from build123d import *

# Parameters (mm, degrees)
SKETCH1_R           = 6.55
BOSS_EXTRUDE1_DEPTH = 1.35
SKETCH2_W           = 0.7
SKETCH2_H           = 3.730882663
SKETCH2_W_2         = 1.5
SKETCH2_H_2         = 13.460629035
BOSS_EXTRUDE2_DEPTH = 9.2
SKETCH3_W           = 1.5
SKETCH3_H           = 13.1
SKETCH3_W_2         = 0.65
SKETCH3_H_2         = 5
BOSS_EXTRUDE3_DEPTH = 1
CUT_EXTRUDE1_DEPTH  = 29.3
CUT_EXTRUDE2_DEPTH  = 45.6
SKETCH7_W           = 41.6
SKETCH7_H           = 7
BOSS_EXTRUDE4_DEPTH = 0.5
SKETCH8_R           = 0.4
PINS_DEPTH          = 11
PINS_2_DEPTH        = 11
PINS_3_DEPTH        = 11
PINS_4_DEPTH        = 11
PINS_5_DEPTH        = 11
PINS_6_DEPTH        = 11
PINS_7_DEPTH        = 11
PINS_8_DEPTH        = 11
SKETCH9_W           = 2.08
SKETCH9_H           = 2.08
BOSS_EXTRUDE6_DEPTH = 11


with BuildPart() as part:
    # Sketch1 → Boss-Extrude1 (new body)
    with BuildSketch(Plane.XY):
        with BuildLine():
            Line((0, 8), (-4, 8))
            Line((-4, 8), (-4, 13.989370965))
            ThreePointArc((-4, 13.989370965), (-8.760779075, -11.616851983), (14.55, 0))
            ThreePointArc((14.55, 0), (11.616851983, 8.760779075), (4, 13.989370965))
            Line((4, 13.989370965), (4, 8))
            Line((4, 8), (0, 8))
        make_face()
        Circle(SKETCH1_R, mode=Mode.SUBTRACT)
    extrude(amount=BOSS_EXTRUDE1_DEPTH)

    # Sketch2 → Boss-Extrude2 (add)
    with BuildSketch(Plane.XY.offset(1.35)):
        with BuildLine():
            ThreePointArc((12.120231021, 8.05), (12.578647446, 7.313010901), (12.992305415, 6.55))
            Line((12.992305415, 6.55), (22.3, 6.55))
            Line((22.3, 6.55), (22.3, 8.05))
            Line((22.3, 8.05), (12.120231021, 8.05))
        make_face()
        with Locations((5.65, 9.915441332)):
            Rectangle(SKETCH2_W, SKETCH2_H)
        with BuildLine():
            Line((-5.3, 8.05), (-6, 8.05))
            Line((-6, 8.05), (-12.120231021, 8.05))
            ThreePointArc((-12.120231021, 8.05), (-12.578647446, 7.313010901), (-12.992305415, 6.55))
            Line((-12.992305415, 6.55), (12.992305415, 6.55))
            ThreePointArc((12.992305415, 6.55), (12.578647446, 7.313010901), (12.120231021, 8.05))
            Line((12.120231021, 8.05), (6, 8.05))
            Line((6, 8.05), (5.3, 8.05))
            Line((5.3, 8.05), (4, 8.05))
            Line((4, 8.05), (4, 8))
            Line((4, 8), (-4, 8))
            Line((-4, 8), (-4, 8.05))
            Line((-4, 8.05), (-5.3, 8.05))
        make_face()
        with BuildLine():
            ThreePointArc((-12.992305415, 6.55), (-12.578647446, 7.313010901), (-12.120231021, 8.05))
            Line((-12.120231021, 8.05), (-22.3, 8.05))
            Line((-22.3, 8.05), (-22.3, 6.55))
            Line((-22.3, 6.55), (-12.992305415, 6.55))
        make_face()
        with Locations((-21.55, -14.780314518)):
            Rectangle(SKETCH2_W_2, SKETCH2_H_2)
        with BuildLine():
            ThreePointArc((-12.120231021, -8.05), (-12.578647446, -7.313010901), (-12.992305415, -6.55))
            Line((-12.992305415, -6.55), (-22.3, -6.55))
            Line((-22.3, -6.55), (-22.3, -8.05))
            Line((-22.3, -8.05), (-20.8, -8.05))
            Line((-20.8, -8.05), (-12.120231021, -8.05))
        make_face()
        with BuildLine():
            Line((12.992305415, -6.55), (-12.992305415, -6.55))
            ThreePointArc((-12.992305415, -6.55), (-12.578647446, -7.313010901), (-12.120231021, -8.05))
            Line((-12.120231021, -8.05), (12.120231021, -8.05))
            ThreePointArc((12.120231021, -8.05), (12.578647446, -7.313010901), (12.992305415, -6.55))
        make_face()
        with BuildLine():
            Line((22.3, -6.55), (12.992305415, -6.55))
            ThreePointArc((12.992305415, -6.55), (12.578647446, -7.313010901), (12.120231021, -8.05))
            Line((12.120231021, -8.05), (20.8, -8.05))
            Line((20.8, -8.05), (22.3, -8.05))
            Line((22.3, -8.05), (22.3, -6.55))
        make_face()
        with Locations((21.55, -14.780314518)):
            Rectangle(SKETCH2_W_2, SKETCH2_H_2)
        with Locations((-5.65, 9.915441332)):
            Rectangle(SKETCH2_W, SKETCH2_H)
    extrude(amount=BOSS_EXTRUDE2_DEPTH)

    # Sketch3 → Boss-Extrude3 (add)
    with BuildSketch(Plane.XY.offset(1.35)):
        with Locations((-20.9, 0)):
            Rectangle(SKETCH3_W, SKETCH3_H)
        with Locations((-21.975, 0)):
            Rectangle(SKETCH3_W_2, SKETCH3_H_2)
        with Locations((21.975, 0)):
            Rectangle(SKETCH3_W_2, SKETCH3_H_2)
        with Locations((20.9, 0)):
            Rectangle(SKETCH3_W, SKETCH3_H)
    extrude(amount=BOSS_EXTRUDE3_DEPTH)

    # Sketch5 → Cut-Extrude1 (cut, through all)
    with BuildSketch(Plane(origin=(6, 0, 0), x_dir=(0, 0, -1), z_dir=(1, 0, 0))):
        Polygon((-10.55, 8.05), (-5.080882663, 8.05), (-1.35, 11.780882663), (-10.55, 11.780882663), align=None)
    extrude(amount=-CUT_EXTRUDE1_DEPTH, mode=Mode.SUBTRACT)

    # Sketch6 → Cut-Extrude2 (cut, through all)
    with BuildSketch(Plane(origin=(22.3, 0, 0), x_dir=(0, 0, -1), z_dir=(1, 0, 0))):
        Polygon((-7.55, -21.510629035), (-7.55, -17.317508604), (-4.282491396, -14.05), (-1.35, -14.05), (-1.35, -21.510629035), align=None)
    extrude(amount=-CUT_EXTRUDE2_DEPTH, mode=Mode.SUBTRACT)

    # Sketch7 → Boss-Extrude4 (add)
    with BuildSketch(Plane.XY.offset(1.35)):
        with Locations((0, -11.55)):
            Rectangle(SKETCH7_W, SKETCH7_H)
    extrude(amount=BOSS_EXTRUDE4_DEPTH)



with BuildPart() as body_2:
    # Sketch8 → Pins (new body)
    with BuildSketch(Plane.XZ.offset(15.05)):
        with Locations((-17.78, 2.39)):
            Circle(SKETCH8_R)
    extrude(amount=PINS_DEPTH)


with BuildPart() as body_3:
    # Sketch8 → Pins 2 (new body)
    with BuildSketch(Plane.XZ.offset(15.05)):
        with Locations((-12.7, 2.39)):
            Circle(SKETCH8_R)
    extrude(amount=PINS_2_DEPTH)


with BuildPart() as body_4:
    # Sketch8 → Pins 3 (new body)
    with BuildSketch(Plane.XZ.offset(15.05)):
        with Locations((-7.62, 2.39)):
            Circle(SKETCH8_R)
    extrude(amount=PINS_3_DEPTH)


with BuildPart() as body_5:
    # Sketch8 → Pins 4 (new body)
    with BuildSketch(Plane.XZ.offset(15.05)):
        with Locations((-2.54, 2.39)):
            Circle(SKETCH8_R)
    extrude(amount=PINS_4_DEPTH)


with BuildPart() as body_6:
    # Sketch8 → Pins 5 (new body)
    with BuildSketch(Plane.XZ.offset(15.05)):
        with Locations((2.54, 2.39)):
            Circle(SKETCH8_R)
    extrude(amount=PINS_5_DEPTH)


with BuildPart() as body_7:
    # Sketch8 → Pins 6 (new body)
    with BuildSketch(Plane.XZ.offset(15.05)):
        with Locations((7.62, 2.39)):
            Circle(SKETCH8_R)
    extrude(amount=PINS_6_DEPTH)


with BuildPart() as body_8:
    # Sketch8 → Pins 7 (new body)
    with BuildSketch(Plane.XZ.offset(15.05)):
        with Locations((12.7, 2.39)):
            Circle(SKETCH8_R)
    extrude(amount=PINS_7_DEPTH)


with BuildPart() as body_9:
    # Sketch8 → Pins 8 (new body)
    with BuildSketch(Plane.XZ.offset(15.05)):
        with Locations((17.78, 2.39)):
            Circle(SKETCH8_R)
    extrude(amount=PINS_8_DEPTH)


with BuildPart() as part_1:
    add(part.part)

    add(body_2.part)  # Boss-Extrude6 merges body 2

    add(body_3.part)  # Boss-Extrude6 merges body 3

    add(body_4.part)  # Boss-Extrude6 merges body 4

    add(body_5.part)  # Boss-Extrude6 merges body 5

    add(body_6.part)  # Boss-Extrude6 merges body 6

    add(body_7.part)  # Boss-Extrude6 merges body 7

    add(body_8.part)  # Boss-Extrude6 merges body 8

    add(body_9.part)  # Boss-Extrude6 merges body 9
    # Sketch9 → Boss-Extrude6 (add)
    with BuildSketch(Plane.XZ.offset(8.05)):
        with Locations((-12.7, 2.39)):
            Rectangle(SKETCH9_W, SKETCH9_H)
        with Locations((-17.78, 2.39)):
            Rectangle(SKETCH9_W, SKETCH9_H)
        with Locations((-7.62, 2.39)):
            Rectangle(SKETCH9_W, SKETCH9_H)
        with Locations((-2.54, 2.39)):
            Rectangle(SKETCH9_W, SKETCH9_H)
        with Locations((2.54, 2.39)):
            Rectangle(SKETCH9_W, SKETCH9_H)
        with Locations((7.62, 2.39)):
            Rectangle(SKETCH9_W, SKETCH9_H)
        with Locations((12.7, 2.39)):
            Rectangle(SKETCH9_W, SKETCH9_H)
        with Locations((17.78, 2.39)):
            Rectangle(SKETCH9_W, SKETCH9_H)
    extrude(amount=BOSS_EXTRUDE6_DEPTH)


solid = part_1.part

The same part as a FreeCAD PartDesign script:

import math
import FreeCAD as App
import Part
import Sketcher
from FreeCAD import Vector
Q = App.Units.Quantity

doc = App.newDocument("Part")
body = doc.addObject("PartDesign::Body", "Body")

sketch1 = doc.addObject("Sketcher::SketchObject", "Sketch")
body.addObject(sketch1)
sketch1.AttachmentSupport = (doc.XY_Plane, [""])
sketch1.MapMode = "FlatFace"
sketch1.addGeometry([
    Part.LineSegment(Vector(-4, 8, 0), Vector(-4, 14, 0)),
    Part.ArcOfCircle(Part.Circle(Vector(0, 0, 0), Vector(0, 0, 1), 15), math.radians(106), math.radians(360)),
    Part.ArcOfCircle(Part.Circle(Vector(0, 0, 0), Vector(0, 0, 1), 15), math.radians(0), math.radians(74)),
    Part.LineSegment(Vector(4, 14, 0), Vector(4, 8, 0)),
    Part.LineSegment(Vector(4, 8, 0), Vector(-4, 8, 0)),
    Part.Circle(Vector(0, 0, 0), Vector(0, 0, 1), 7),
], False)
sketch1.addConstraint([
    Sketcher.Constraint("Coincident", 0, 2, 1, 1),
    Sketcher.Constraint("Tangent", 1, 2, 2, 1),
    Sketcher.Constraint("Coincident", 2, 2, 3, 1),
    Sketcher.Constraint("Coincident", 3, 2, 4, 1),
    Sketcher.Constraint("Coincident", 4, 2, 0, 1),
    Sketcher.Constraint("Vertical", 0),
    Sketcher.Constraint("Vertical", 3),
    Sketcher.Constraint("Horizontal", 4),
    Sketcher.Constraint("Coincident", 1, 3, -1, 1),
    Sketcher.Constraint("Coincident", 5, 3, -1, 1),
    Sketcher.Constraint("Equal", 1, 2),
    Sketcher.Constraint("PointOnObject", 1, 2, -1),
    Sketcher.Constraint("Horizontal", 0, 2, 2, 2),
    Sketcher.Constraint("Diameter", 5, 13.1),
    Sketcher.Constraint("DistanceX", 4, 2, 4, 1, 8.0),
    Sketcher.Constraint("Radius", 1, 14.55),
    Sketcher.Constraint("DistanceY", -1, 1, 3, 2, 8.0),
])
pad1 = doc.addObject("PartDesign::Pad", "Pad")
body.addObject(pad1)
pad1.Profile = sketch1
pad1.Length = 1.35

sketch2 = doc.addObject("Sketcher::SketchObject", "Sketch001")
body.addObject(sketch2)
sketch2.AttachmentSupport = (doc.XY_Plane, [""])
sketch2.MapMode = "FlatFace"
sketch2.AttachmentOffset = App.Placement(Vector(0, 0, 1.35), App.Rotation())
sketch2.addGeometry([
    Part.LineSegment(Vector(22.3, 6.55, 0), Vector(22.3, 8.05, 0)),
    Part.LineSegment(Vector(22.3, 8.05, 0), Vector(6, 8.05, 0)),
    Part.LineSegment(Vector(6, 8.05, 0), Vector(6, 11.78, 0)),
    Part.LineSegment(Vector(6, 11.78, 0), Vector(5.3, 11.78, 0)),
    Part.LineSegment(Vector(5.3, 11.78, 0), Vector(5.3, 8.05, 0)),
    Part.LineSegment(Vector(5.3, 8.05, 0), Vector(4, 8.05, 0)),
    Part.LineSegment(Vector(4, 8.05, 0), Vector(4, 8, 0)),
    Part.LineSegment(Vector(4, 8, 0), Vector(-4, 8, 0)),
    Part.LineSegment(Vector(-4, 8, 0), Vector(-4, 8.05, 0)),
    Part.LineSegment(Vector(-4, 8.05, 0), Vector(-5.3, 8.05, 0)),
    Part.LineSegment(Vector(-5.3, 8.05, 0), Vector(-5.3, 11.78, 0)),
    Part.LineSegment(Vector(-5.3, 11.78, 0), Vector(-6, 11.78, 0)),
    Part.LineSegment(Vector(-6, 11.78, 0), Vector(-6, 8.05, 0)),
    Part.LineSegment(Vector(-6, 8.05, 0), Vector(-22.3, 8.05, 0)),
    Part.LineSegment(Vector(-22.3, 8.05, 0), Vector(-22.3, 6.55, 0)),
    Part.LineSegment(Vector(-22.3, 6.55, 0), Vector(22.3, 6.55, 0)),
    Part.LineSegment(Vector(-22.3, -21.51, 0), Vector(-20.8, -21.51, 0)),
    Part.LineSegment(Vector(-20.8, -21.51, 0), Vector(-20.8, -8.05, 0)),
    Part.LineSegment(Vector(-20.8, -8.05, 0), Vector(12.12, -8.05, 0)),
    Part.LineSegment(Vector(12.12, -8.05, 0), Vector(20.8, -8.05, 0)),
    Part.LineSegment(Vector(20.8, -8.05, 0), Vector(20.8, -21.51, 0)),
    Part.LineSegment(Vector(20.8, -21.51, 0), Vector(22.3, -21.51, 0)),
    Part.LineSegment(Vector(22.3, -21.51, 0), Vector(22.3, -6.55, 0)),
    Part.LineSegment(Vector(22.3, -6.55, 0), Vector(-22.3, -6.55, 0)),
    Part.LineSegment(Vector(-22.3, -6.55, 0), Vector(-22.3, -21.51, 0)),
], False)
sketch2.addConstraint([
    Sketcher.Constraint("Coincident", 0, 2, 1, 1),
    Sketcher.Constraint("Coincident", 1, 2, 2, 1),
    Sketcher.Constraint("Coincident", 2, 2, 3, 1),
    Sketcher.Constraint("Coincident", 3, 2, 4, 1),
    Sketcher.Constraint("Coincident", 4, 2, 5, 1),
    Sketcher.Constraint("Coincident", 5, 2, 6, 1),
    Sketcher.Constraint("Coincident", 6, 2, 7, 1),
    Sketcher.Constraint("Coincident", 7, 2, 8, 1),
    Sketcher.Constraint("Coincident", 8, 2, 9, 1),
    Sketcher.Constraint("Coincident", 9, 2, 10, 1),
    Sketcher.Constraint("Coincident", 10, 2, 11, 1),
    Sketcher.Constraint("Coincident", 11, 2, 12, 1),
    Sketcher.Constraint("Coincident", 12, 2, 13, 1),
    Sketcher.Constraint("Coincident", 13, 2, 14, 1),
    Sketcher.Constraint("Coincident", 14, 2, 15, 1),
    Sketcher.Constraint("Coincident", 15, 2, 0, 1),
    Sketcher.Constraint("Coincident", 16, 2, 17, 1),
    Sketcher.Constraint("Coincident", 17, 2, 18, 1),
    Sketcher.Constraint("Coincident", 18, 2, 19, 1),
    Sketcher.Constraint("Coincident", 19, 2, 20, 1),
    Sketcher.Constraint("Coincident", 20, 2, 21, 1),
    Sketcher.Constraint("Coincident", 21, 2, 22, 1),
    Sketcher.Constraint("Coincident", 22, 2, 23, 1),
    Sketcher.Constraint("Coincident", 23, 2, 24, 1),
    Sketcher.Constraint("Coincident", 24, 2, 16, 1),
    Sketcher.Constraint("Vertical", 0),
    Sketcher.Constraint("Horizontal", 1),
    Sketcher.Constraint("Vertical", 2),
    Sketcher.Constraint("Horizontal", 3),
    Sketcher.Constraint("Vertical", 4),
    Sketcher.Constraint("Horizontal", 5),
    Sketcher.Constraint("Vertical", 6),
    Sketcher.Constraint("Horizontal", 7),
    Sketcher.Constraint("Vertical", 8),
    Sketcher.Constraint("Horizontal", 9),
    Sketcher.Constraint("Vertical", 10),
    Sketcher.Constraint("Horizontal", 11),
    Sketcher.Constraint("Vertical", 12),
    Sketcher.Constraint("Horizontal", 13),
    Sketcher.Constraint("Vertical", 14),
    Sketcher.Constraint("Horizontal", 15),
    Sketcher.Constraint("Horizontal", 16),
    Sketcher.Constraint("Vertical", 17),
    Sketcher.Constraint("Horizontal", 18),
    Sketcher.Constraint("Horizontal", 19),
    Sketcher.Constraint("Vertical", 20),
    Sketcher.Constraint("Horizontal", 21),
    Sketcher.Constraint("Vertical", 22),
    Sketcher.Constraint("Horizontal", 23),
    Sketcher.Constraint("Vertical", 24),
    Sketcher.Constraint("Symmetric", 14, 2, 22, 2, -1, 1),
    Sketcher.Constraint("Symmetric", 5, 2, 8, 2, -2),
    Sketcher.Constraint("Symmetric", 3, 2, 10, 2, -2),
    Sketcher.Constraint("Symmetric", 1, 2, 12, 2, -2),
    Sketcher.Constraint("Symmetric", 16, 2, 20, 2, -2),
    Sketcher.Constraint("Horizontal", 1, 2, 4, 2),
    Sketcher.Constraint("Vertical", 15, 2, 21, 2),
    Sketcher.Constraint("Vertical", 14, 2, 23, 2),
    Sketcher.Constraint("Equal", 21, 0),
    Sketcher.Constraint("DistanceX", 7, 2, 7, 1, 8.0),
    Sketcher.Constraint("DistanceX", 1, 2, 1, 1, 16.3),
    Sketcher.Constraint("DistanceX", 3, 2, 3, 1, 0.7),
    Sketcher.Constraint("DistanceX", 5, 2, 5, 1, 1.3),
    Sketcher.Constraint("DistanceX", 16, 1, 16, 2, 1.5),
    Sketcher.Constraint("DistanceY", -1, 1, 6, 2, 8.0),
    Sketcher.Constraint("DistanceY", 6, 2, 6, 1, 0.05),
    Sketcher.Constraint("DistanceY", 17, 2, 14, 2, 14.6),
    Sketcher.Constraint("DistanceX", 18, 1, 18, 2, 32.920231),
    Sketcher.Constraint("DistanceY", 17, 1, 17, 2, 13.460629),
    Sketcher.Constraint("DistanceY", 2, 1, 2, 2, 3.730883),
])
pad2 = doc.addObject("PartDesign::Pad", "Pad001")
body.addObject(pad2)
pad2.Profile = sketch2
pad2.Length = 9.2

sketch3 = doc.addObject("Sketcher::SketchObject", "Sketch002")
body.addObject(sketch3)
sketch3.AttachmentSupport = (doc.XY_Plane, [""])
sketch3.MapMode = "FlatFace"
sketch3.AttachmentOffset = App.Placement(Vector(0, 0, 1.35), App.Rotation())
sketch3.addGeometry([
    Part.LineSegment(Vector(-21.6, -2.5, 0), Vector(-21.6, -6.5, 0)),
    Part.LineSegment(Vector(-21.6, -6.5, 0), Vector(-20.1, -6.5, 0)),
    Part.LineSegment(Vector(-20.1, -6.5, 0), Vector(-20.1, 6.5, 0)),
    Part.LineSegment(Vector(-20.1, 6.5, 0), Vector(-21.6, 6.5, 0)),
    Part.LineSegment(Vector(-21.6, 6.5, 0), Vector(-21.6, 2.5, 0)),
    Part.LineSegment(Vector(-21.6, 2.5, 0), Vector(-22.3, 2.5, 0)),
    Part.LineSegment(Vector(-22.3, 2.5, 0), Vector(-22.3, -2.5, 0)),
    Part.LineSegment(Vector(-22.3, -2.5, 0), Vector(-21.6, -2.5, 0)),
    Part.LineSegment(Vector(21.6, -2.5, 0), Vector(22.3, -2.5, 0)),
    Part.LineSegment(Vector(22.3, -2.5, 0), Vector(22.3, 2.5, 0)),
    Part.LineSegment(Vector(22.3, 2.5, 0), Vector(21.6, 2.5, 0)),
    Part.LineSegment(Vector(21.6, 2.5, 0), Vector(21.6, 6.5, 0)),
    Part.LineSegment(Vector(21.6, 6.5, 0), Vector(20.1, 6.5, 0)),
    Part.LineSegment(Vector(20.1, 6.5, 0), Vector(20.1, -6.5, 0)),
    Part.LineSegment(Vector(20.1, -6.5, 0), Vector(21.6, -6.5, 0)),
    Part.LineSegment(Vector(21.6, -6.5, 0), Vector(21.6, -2.5, 0)),
], False)
sketch3.addConstraint([
    Sketcher.Constraint("Coincident", 0, 2, 1, 1),
    Sketcher.Constraint("Coincident", 1, 2, 2, 1),
    Sketcher.Constraint("Coincident", 2, 2, 3, 1),
    Sketcher.Constraint("Coincident", 3, 2, 4, 1),
    Sketcher.Constraint("Coincident", 4, 2, 5, 1),
    Sketcher.Constraint("Coincident", 5, 2, 6, 1),
    Sketcher.Constraint("Coincident", 6, 2, 7, 1),
    Sketcher.Constraint("Coincident", 7, 2, 0, 1),
    Sketcher.Constraint("Coincident", 8, 2, 9, 1),
    Sketcher.Constraint("Coincident", 9, 2, 10, 1),
    Sketcher.Constraint("Coincident", 10, 2, 11, 1),
    Sketcher.Constraint("Coincident", 11, 2, 12, 1),
    Sketcher.Constraint("Coincident", 12, 2, 13, 1),
    Sketcher.Constraint("Coincident", 13, 2, 14, 1),
    Sketcher.Constraint("Coincident", 14, 2, 15, 1),
    Sketcher.Constraint("Coincident", 15, 2, 8, 1),
    Sketcher.Constraint("Vertical", 0),
    Sketcher.Constraint("Horizontal", 1),
    Sketcher.Constraint("Vertical", 2),
    Sketcher.Constraint("Horizontal", 3),
    Sketcher.Constraint("Vertical", 4),
    Sketcher.Constraint("Horizontal", 5),
    Sketcher.Constraint("Vertical", 6),
    Sketcher.Constraint("Horizontal", 7),
    Sketcher.Constraint("Horizontal", 8),
    Sketcher.Constraint("Vertical", 9),
    Sketcher.Constraint("Horizontal", 10),
    Sketcher.Constraint("Vertical", 11),
    Sketcher.Constraint("Horizontal", 12),
    Sketcher.Constraint("Vertical", 13),
    Sketcher.Constraint("Horizontal", 14),
    Sketcher.Constraint("Vertical", 15),
    Sketcher.Constraint("Symmetric", 5, 2, 8, 2, -1, 1),
    Sketcher.Constraint("Symmetric", 7, 2, 10, 2, -1, 1),
    Sketcher.Constraint("Symmetric", 1, 2, 12, 2, -1, 1),
    Sketcher.Constraint("Symmetric", 3, 2, 14, 2, -1, 1),
    Sketcher.Constraint("Symmetric", 4, 2, 10, 2, -2),
    Sketcher.Constraint("Horizontal", 3, 2, 11, 2),
    Sketcher.Constraint("DistanceY", 6, 2, 6, 1, 5.0),
    Sketcher.Constraint("DistanceX", 1, 1, 1, 2, 1.5),
    Sketcher.Constraint("DistanceY", 2, 1, 2, 2, 13.1),
    Sketcher.Constraint("DistanceX", 5, 2, 5, 1, 0.65),
    Sketcher.Constraint("DistanceX", 5, 2, -1, 1, 22.3),
])
pad3 = doc.addObject("PartDesign::Pad", "Pad002")
body.addObject(pad3)
pad3.Profile = sketch3
pad3.Length = 1

sketch4 = doc.addObject("Sketcher::SketchObject", "Sketch003")
body.addObject(sketch4)
sketch4.AttachmentSupport = (doc.YZ_Plane, [""])
sketch4.MapMode = "FlatFace"
sketch4.AttachmentOffset = App.Placement(Vector(0, 0, 6), App.Rotation())
sketch4.addGeometry([
    Part.LineSegment(Vector(8.1, 10.6, 0), Vector(8.1, 5.1, 0)),
    Part.LineSegment(Vector(8.1, 5.1, 0), Vector(11.8, 1.4, 0)),
    Part.LineSegment(Vector(11.8, 1.4, 0), Vector(11.8, 10.6, 0)),
    Part.LineSegment(Vector(11.8, 10.6, 0), Vector(8.1, 10.6, 0)),
], False)
sketch4.addConstraint([
    Sketcher.Constraint("Coincident", 0, 2, 1, 1),
    Sketcher.Constraint("Coincident", 1, 2, 2, 1),
    Sketcher.Constraint("Coincident", 2, 2, 3, 1),
    Sketcher.Constraint("Coincident", 3, 2, 0, 1),
    Sketcher.Constraint("Vertical", 0),
    Sketcher.Constraint("Vertical", 2),
    Sketcher.Constraint("Horizontal", 3),
    Sketcher.Constraint("Angle", 1, Q("-45 deg")),
    Sketcher.Constraint("DistanceY", 2, 1, 2, 2, 9.2),
    Sketcher.Constraint("DistanceX", -1, 1, 0, 2, 8.05),
    Sketcher.Constraint("DistanceY", -1, 1, 1, 2, 1.35),
    Sketcher.Constraint("DistanceX", 3, 2, 3, 1, 3.730883),
])
pocket1 = doc.addObject("PartDesign::Pocket", "Pocket")
body.addObject(pocket1)
pocket1.Profile = sketch4
pocket1.Type = "ThroughAll"

sketch5 = doc.addObject("Sketcher::SketchObject", "Sketch004")
body.addObject(sketch5)
sketch5.AttachmentSupport = (doc.YZ_Plane, [""])
sketch5.MapMode = "FlatFace"
sketch5.AttachmentOffset = App.Placement(Vector(0, 0, 22.3), App.Rotation())
sketch5.addGeometry([
    Part.LineSegment(Vector(-17.3, 7.5, 0), Vector(-21.5, 7.5, 0)),
    Part.LineSegment(Vector(-21.5, 7.5, 0), Vector(-21.5, 1.4, 0)),
    Part.LineSegment(Vector(-21.5, 1.4, 0), Vector(-14.1, 1.4, 0)),
    Part.LineSegment(Vector(-14.1, 1.4, 0), Vector(-14.1, 4.3, 0)),
    Part.LineSegment(Vector(-14.1, 4.3, 0), Vector(-17.3, 7.5, 0)),
], False)
sketch5.addConstraint([
    Sketcher.Constraint("Coincident", 0, 2, 1, 1),
    Sketcher.Constraint("Coincident", 1, 2, 2, 1),
    Sketcher.Constraint("Coincident", 2, 2, 3, 1),
    Sketcher.Constraint("Coincident", 3, 2, 4, 1),
    Sketcher.Constraint("Coincident", 4, 2, 0, 1),
    Sketcher.Constraint("Horizontal", 0),
    Sketcher.Constraint("Vertical", 1),
    Sketcher.Constraint("Horizontal", 2),
    Sketcher.Constraint("Vertical", 3),
    Sketcher.Constraint("Angle", 4, Q("135 deg")),
    Sketcher.Constraint("DistanceY", 1, 2, 1, 1, 6.2),
    Sketcher.Constraint("DistanceY", -1, 1, 0, 2, 7.55),
    Sketcher.Constraint("DistanceX", 2, 2, -1, 1, 14.05),
    Sketcher.Constraint("DistanceX", 0, 2, 0, 1, 4.19312),
    Sketcher.Constraint("DistanceX", 2, 1, 2, 2, 7.460629),
])
pocket2 = doc.addObject("PartDesign::Pocket", "Pocket001")
body.addObject(pocket2)
pocket2.Profile = sketch5
pocket2.Type = "ThroughAll"

sketch6 = doc.addObject("Sketcher::SketchObject", "Sketch005")
body.addObject(sketch6)
sketch6.AttachmentSupport = (doc.XY_Plane, [""])
sketch6.MapMode = "FlatFace"
sketch6.AttachmentOffset = App.Placement(Vector(0, 0, 1.35), App.Rotation())
sketch6.addGeometry([
    Part.LineSegment(Vector(-21, -8, 0), Vector(-21, -15, 0)),
    Part.LineSegment(Vector(-21, -15, 0), Vector(21, -15, 0)),
    Part.LineSegment(Vector(21, -15, 0), Vector(21, -8, 0)),
    Part.LineSegment(Vector(21, -8, 0), Vector(-21, -8, 0)),
], False)
sketch6.addConstraint([
    Sketcher.Constraint("Coincident", 0, 2, 1, 1),
    Sketcher.Constraint("Coincident", 1, 2, 2, 1),
    Sketcher.Constraint("Coincident", 2, 2, 3, 1),
    Sketcher.Constraint("Coincident", 3, 2, 0, 1),
    Sketcher.Constraint("Vertical", 0),
    Sketcher.Constraint("Horizontal", 1),
    Sketcher.Constraint("Vertical", 2),
    Sketcher.Constraint("Horizontal", 3),
    Sketcher.Constraint("DistanceY", 0, 2, 0, 1, 7.0),
    Sketcher.Constraint("DistanceX", 1, 1, 1, 2, 41.6),
    Sketcher.Constraint("DistanceX", 0, 2, -1, 1, 20.8),
    Sketcher.Constraint("DistanceY", 0, 2, -1, 1, 15.05),
])
pad4 = doc.addObject("PartDesign::Pad", "Pad003")
body.addObject(pad4)
pad4.Profile = sketch6
pad4.Length = 0.5
body2 = doc.addObject("PartDesign::Body", "Body001")

sketch7 = doc.addObject("Sketcher::SketchObject", "Sketch006")
body2.addObject(sketch7)
sketch7.AttachmentSupport = (doc.getObject("XZ_Plane001"), [""])
sketch7.MapMode = "FlatFace"
sketch7.AttachmentOffset = App.Placement(Vector(0, 0, 15.05), App.Rotation())
sketch7.addGeometry(Part.Circle(Vector(-17.78, 2.39, 0), Vector(0, 0, 1), 0.4), False)
sketch7.addConstraint([
    Sketcher.Constraint("Diameter", 0, 0.8),
    Sketcher.Constraint("DistanceX", 0, 3, -1, 1, 17.78),
    Sketcher.Constraint("DistanceY", -1, 1, 0, 3, 2.39),
])
pad5 = doc.addObject("PartDesign::Pad", "Pad004")
body2.addObject(pad5)
pad5.Profile = sketch7
pad5.Length = 11
body3 = doc.addObject("PartDesign::Body", "Body002")

sketch8 = doc.addObject("Sketcher::SketchObject", "Sketch007")
body3.addObject(sketch8)
sketch8.AttachmentSupport = (doc.getObject("XZ_Plane002"), [""])
sketch8.MapMode = "FlatFace"
sketch8.AttachmentOffset = App.Placement(Vector(0, 0, 15.05), App.Rotation())
sketch8.addGeometry(Part.Circle(Vector(-12.7, 2.39, 0), Vector(0, 0, 1), 0.4), False)
sketch8.addConstraint([
    Sketcher.Constraint("Diameter", 0, 0.8),
    Sketcher.Constraint("DistanceX", 0, 3, -1, 1, 12.7),
    Sketcher.Constraint("DistanceY", -1, 1, 0, 3, 2.39),
])
pad6 = doc.addObject("PartDesign::Pad", "Pad005")
body3.addObject(pad6)
pad6.Profile = sketch8
pad6.Length = 11
body4 = doc.addObject("PartDesign::Body", "Body003")

sketch9 = doc.addObject("Sketcher::SketchObject", "Sketch008")
body4.addObject(sketch9)
sketch9.AttachmentSupport = (doc.getObject("XZ_Plane003"), [""])
sketch9.MapMode = "FlatFace"
sketch9.AttachmentOffset = App.Placement(Vector(0, 0, 15.05), App.Rotation())
sketch9.addGeometry(Part.Circle(Vector(-7.62, 2.39, 0), Vector(0, 0, 1), 0.4), False)
sketch9.addConstraint([
    Sketcher.Constraint("Diameter", 0, 0.8),
    Sketcher.Constraint("DistanceX", 0, 3, -1, 1, 7.62),
    Sketcher.Constraint("DistanceY", -1, 1, 0, 3, 2.39),
])
pad7 = doc.addObject("PartDesign::Pad", "Pad006")
body4.addObject(pad7)
pad7.Profile = sketch9
pad7.Length = 11
body5 = doc.addObject("PartDesign::Body", "Body004")

sketch10 = doc.addObject("Sketcher::SketchObject", "Sketch009")
body5.addObject(sketch10)
sketch10.AttachmentSupport = (doc.getObject("XZ_Plane004"), [""])
sketch10.MapMode = "FlatFace"
sketch10.AttachmentOffset = App.Placement(Vector(0, 0, 15.05), App.Rotation())
sketch10.addGeometry(Part.Circle(Vector(-2.54, 2.39, 0), Vector(0, 0, 1), 0.4), False)
sketch10.addConstraint([
    Sketcher.Constraint("Diameter", 0, 0.8),
    Sketcher.Constraint("DistanceX", 0, 3, -1, 1, 2.54),
    Sketcher.Constraint("DistanceY", -1, 1, 0, 3, 2.39),
])
pad8 = doc.addObject("PartDesign::Pad", "Pad007")
body5.addObject(pad8)
pad8.Profile = sketch10
pad8.Length = 11
body6 = doc.addObject("PartDesign::Body", "Body005")

sketch11 = doc.addObject("Sketcher::SketchObject", "Sketch010")
body6.addObject(sketch11)
sketch11.AttachmentSupport = (doc.getObject("XZ_Plane005"), [""])
sketch11.MapMode = "FlatFace"
sketch11.AttachmentOffset = App.Placement(Vector(0, 0, 15.05), App.Rotation())
sketch11.addGeometry(Part.Circle(Vector(2.54, 2.39, 0), Vector(0, 0, 1), 0.4), False)
sketch11.addConstraint([
    Sketcher.Constraint("Diameter", 0, 0.8),
    Sketcher.Constraint("DistanceX", -1, 1, 0, 3, 2.54),
    Sketcher.Constraint("DistanceY", -1, 1, 0, 3, 2.39),
])
pad9 = doc.addObject("PartDesign::Pad", "Pad008")
body6.addObject(pad9)
pad9.Profile = sketch11
pad9.Length = 11
body7 = doc.addObject("PartDesign::Body", "Body006")

sketch12 = doc.addObject("Sketcher::SketchObject", "Sketch011")
body7.addObject(sketch12)
sketch12.AttachmentSupport = (doc.getObject("XZ_Plane006"), [""])
sketch12.MapMode = "FlatFace"
sketch12.AttachmentOffset = App.Placement(Vector(0, 0, 15.05), App.Rotation())
sketch12.addGeometry(Part.Circle(Vector(7.62, 2.39, 0), Vector(0, 0, 1), 0.4), False)
sketch12.addConstraint([
    Sketcher.Constraint("Diameter", 0, 0.8),
    Sketcher.Constraint("DistanceX", -1, 1, 0, 3, 7.62),
    Sketcher.Constraint("DistanceY", -1, 1, 0, 3, 2.39),
])
pad10 = doc.addObject("PartDesign::Pad", "Pad009")
body7.addObject(pad10)
pad10.Profile = sketch12
pad10.Length = 11
body8 = doc.addObject("PartDesign::Body", "Body007")

sketch13 = doc.addObject("Sketcher::SketchObject", "Sketch012")
body8.addObject(sketch13)
sketch13.AttachmentSupport = (doc.getObject("XZ_Plane007"), [""])
sketch13.MapMode = "FlatFace"
sketch13.AttachmentOffset = App.Placement(Vector(0, 0, 15.05), App.Rotation())
sketch13.addGeometry(Part.Circle(Vector(12.7, 2.39, 0), Vector(0, 0, 1), 0.4), False)
sketch13.addConstraint([
    Sketcher.Constraint("Diameter", 0, 0.8),
    Sketcher.Constraint("DistanceX", -1, 1, 0, 3, 12.7),
    Sketcher.Constraint("DistanceY", -1, 1, 0, 3, 2.39),
])
pad11 = doc.addObject("PartDesign::Pad", "Pad010")
body8.addObject(pad11)
pad11.Profile = sketch13
pad11.Length = 11
body9 = doc.addObject("PartDesign::Body", "Body008")

sketch14 = doc.addObject("Sketcher::SketchObject", "Sketch013")
body9.addObject(sketch14)
sketch14.AttachmentSupport = (doc.getObject("XZ_Plane008"), [""])
sketch14.MapMode = "FlatFace"
sketch14.AttachmentOffset = App.Placement(Vector(0, 0, 15.05), App.Rotation())
sketch14.addGeometry(Part.Circle(Vector(17.78, 2.39, 0), Vector(0, 0, 1), 0.4), False)
sketch14.addConstraint([
    Sketcher.Constraint("Diameter", 0, 0.8),
    Sketcher.Constraint("DistanceX", -1, 1, 0, 3, 17.78),
    Sketcher.Constraint("DistanceY", -1, 1, 0, 3, 2.39),
])
pad12 = doc.addObject("PartDesign::Pad", "Pad011")
body9.addObject(pad12)
pad12.Profile = sketch14
pad12.Length = 11
body.AllowCompound = True
doc.recompute()

boolean = doc.addObject("PartDesign::Boolean", "Boolean")
body.addObject(boolean)
boolean.Type = "Fuse"
boolean.addObjects([body2])
doc.recompute()

boolean2 = doc.addObject("PartDesign::Boolean", "Boolean001")
body.addObject(boolean2)
boolean2.Type = "Fuse"
boolean2.addObjects([body3])
doc.recompute()

boolean3 = doc.addObject("PartDesign::Boolean", "Boolean002")
body.addObject(boolean3)
boolean3.Type = "Fuse"
boolean3.addObjects([body4])
doc.recompute()

boolean4 = doc.addObject("PartDesign::Boolean", "Boolean003")
body.addObject(boolean4)
boolean4.Type = "Fuse"
boolean4.addObjects([body5])
doc.recompute()

boolean5 = doc.addObject("PartDesign::Boolean", "Boolean004")
body.addObject(boolean5)
boolean5.Type = "Fuse"
boolean5.addObjects([body6])
doc.recompute()

boolean6 = doc.addObject("PartDesign::Boolean", "Boolean005")
body.addObject(boolean6)
boolean6.Type = "Fuse"
boolean6.addObjects([body7])
doc.recompute()

boolean7 = doc.addObject("PartDesign::Boolean", "Boolean006")
body.addObject(boolean7)
boolean7.Type = "Fuse"
boolean7.addObjects([body8])
doc.recompute()

boolean8 = doc.addObject("PartDesign::Boolean", "Boolean007")
body.addObject(boolean8)
boolean8.Type = "Fuse"
boolean8.addObjects([body9])

sketch15 = doc.addObject("Sketcher::SketchObject", "Sketch014")
body.addObject(sketch15)
sketch15.AttachmentSupport = (doc.XZ_Plane, [""])
sketch15.MapMode = "FlatFace"
sketch15.AttachmentOffset = App.Placement(Vector(0, 0, 8.05), App.Rotation())
sketch15.addGeometry([
    Part.LineSegment(Vector(-13.7, 3.4, 0), Vector(-13.7, 1.4, 0)),
    Part.LineSegment(Vector(-13.7, 1.4, 0), Vector(-11.7, 1.4, 0)),
    Part.LineSegment(Vector(-11.7, 1.4, 0), Vector(-11.7, 3.4, 0)),
    Part.LineSegment(Vector(-11.7, 3.4, 0), Vector(-13.7, 3.4, 0)),
    Part.LineSegment(Vector(-18.8, 3.4, 0), Vector(-18.8, 1.4, 0)),
    Part.LineSegment(Vector(-18.8, 1.4, 0), Vector(-16.7, 1.4, 0)),
    Part.LineSegment(Vector(-16.7, 1.4, 0), Vector(-16.7, 3.4, 0)),
    Part.LineSegment(Vector(-16.7, 3.4, 0), Vector(-18.8, 3.4, 0)),
    Part.LineSegment(Vector(-8.7, 3.4, 0), Vector(-8.7, 1.4, 0)),
    Part.LineSegment(Vector(-8.7, 1.4, 0), Vector(-6.6, 1.4, 0)),
    Part.LineSegment(Vector(-6.6, 1.4, 0), Vector(-6.6, 3.4, 0)),
    Part.LineSegment(Vector(-6.6, 3.4, 0), Vector(-8.7, 3.4, 0)),
    Part.LineSegment(Vector(-3.6, 3.4, 0), Vector(-3.6, 1.4, 0)),
    Part.LineSegment(Vector(-3.6, 1.4, 0), Vector(-1.5, 1.4, 0)),
    Part.LineSegment(Vector(-1.5, 1.4, 0), Vector(-1.5, 3.4, 0)),
    Part.LineSegment(Vector(-1.5, 3.4, 0), Vector(-3.6, 3.4, 0)),
    Part.LineSegment(Vector(1.5, 3.4, 0), Vector(1.5, 1.4, 0)),
    Part.LineSegment(Vector(1.5, 1.4, 0), Vector(3.6, 1.4, 0)),
    Part.LineSegment(Vector(3.6, 1.4, 0), Vector(3.6, 3.4, 0)),
    Part.LineSegment(Vector(3.6, 3.4, 0), Vector(1.5, 3.4, 0)),
    Part.LineSegment(Vector(6.6, 3.4, 0), Vector(6.6, 1.4, 0)),
    Part.LineSegment(Vector(6.6, 1.4, 0), Vector(8.7, 1.4, 0)),
    Part.LineSegment(Vector(8.7, 1.4, 0), Vector(8.7, 3.4, 0)),
    Part.LineSegment(Vector(8.7, 3.4, 0), Vector(6.6, 3.4, 0)),
    Part.LineSegment(Vector(11.7, 3.4, 0), Vector(11.7, 1.4, 0)),
    Part.LineSegment(Vector(11.7, 1.4, 0), Vector(13.7, 1.4, 0)),
    Part.LineSegment(Vector(13.7, 1.4, 0), Vector(13.7, 3.4, 0)),
    Part.LineSegment(Vector(13.7, 3.4, 0), Vector(11.7, 3.4, 0)),
    Part.LineSegment(Vector(16.7, 3.4, 0), Vector(16.7, 1.4, 0)),
    Part.LineSegment(Vector(16.7, 1.4, 0), Vector(18.8, 1.4, 0)),
    Part.LineSegment(Vector(18.8, 1.4, 0), Vector(18.8, 3.4, 0)),
    Part.LineSegment(Vector(18.8, 3.4, 0), Vector(16.7, 3.4, 0)),
], False)
sketch15.addConstraint([
    Sketcher.Constraint("Coincident", 0, 2, 1, 1),
    Sketcher.Constraint("Coincident", 1, 2, 2, 1),
    Sketcher.Constraint("Coincident", 2, 2, 3, 1),
    Sketcher.Constraint("Coincident", 3, 2, 0, 1),
    Sketcher.Constraint("Coincident", 4, 2, 5, 1),
    Sketcher.Constraint("Coincident", 5, 2, 6, 1),
    Sketcher.Constraint("Coincident", 6, 2, 7, 1),
    Sketcher.Constraint("Coincident", 7, 2, 4, 1),
    Sketcher.Constraint("Coincident", 8, 2, 9, 1),
    Sketcher.Constraint("Coincident", 9, 2, 10, 1),
    Sketcher.Constraint("Coincident", 10, 2, 11, 1),
    Sketcher.Constraint("Coincident", 11, 2, 8, 1),
    Sketcher.Constraint("Coincident", 12, 2, 13, 1),
    Sketcher.Constraint("Coincident", 13, 2, 14, 1),
    Sketcher.Constraint("Coincident", 14, 2, 15, 1),
    Sketcher.Constraint("Coincident", 15, 2, 12, 1),
    Sketcher.Constraint("Coincident", 16, 2, 17, 1),
    Sketcher.Constraint("Coincident", 17, 2, 18, 1),
    Sketcher.Constraint("Coincident", 18, 2, 19, 1),
    Sketcher.Constraint("Coincident", 19, 2, 16, 1),
    Sketcher.Constraint("Coincident", 20, 2, 21, 1),
    Sketcher.Constraint("Coincident", 21, 2, 22, 1),
    Sketcher.Constraint("Coincident", 22, 2, 23, 1),
    Sketcher.Constraint("Coincident", 23, 2, 20, 1),
    Sketcher.Constraint("Coincident", 24, 2, 25, 1),
    Sketcher.Constraint("Coincident", 25, 2, 26, 1),
    Sketcher.Constraint("Coincident", 26, 2, 27, 1),
    Sketcher.Constraint("Coincident", 27, 2, 24, 1),
    Sketcher.Constraint("Coincident", 28, 2, 29, 1),
    Sketcher.Constraint("Coincident", 29, 2, 30, 1),
    Sketcher.Constraint("Coincident", 30, 2, 31, 1),
    Sketcher.Constraint("Coincident", 31, 2, 28, 1),
    Sketcher.Constraint("Vertical", 0),
    Sketcher.Constraint("Horizontal", 1),
    Sketcher.Constraint("Vertical", 2),
    Sketcher.Constraint("Horizontal", 3),
    Sketcher.Constraint("Vertical", 4),
    Sketcher.Constraint("Horizontal", 5),
    Sketcher.Constraint("Vertical", 6),
    Sketcher.Constraint("Horizontal", 7),
    Sketcher.Constraint("Vertical", 8),
    Sketcher.Constraint("Horizontal", 9),
    Sketcher.Constraint("Vertical", 10),
    Sketcher.Constraint("Horizontal", 11),
    Sketcher.Constraint("Vertical", 12),
    Sketcher.Constraint("Horizontal", 13),
    Sketcher.Constraint("Vertical", 14),
    Sketcher.Constraint("Horizontal", 15),
    Sketcher.Constraint("Vertical", 16),
    Sketcher.Constraint("Horizontal", 17),
    Sketcher.Constraint("Vertical", 18),
    Sketcher.Constraint("Horizontal", 19),
    Sketcher.Constraint("Vertical", 20),
    Sketcher.Constraint("Horizontal", 21),
    Sketcher.Constraint("Vertical", 22),
    Sketcher.Constraint("Horizontal", 23),
    Sketcher.Constraint("Vertical", 24),
    Sketcher.Constraint("Horizontal", 25),
    Sketcher.Constraint("Vertical", 26),
    Sketcher.Constraint("Horizontal", 27),
    Sketcher.Constraint("Vertical", 28),
    Sketcher.Constraint("Horizontal", 29),
    Sketcher.Constraint("Vertical", 30),
    Sketcher.Constraint("Horizontal", 31),
    Sketcher.Constraint("Symmetric", 13, 2, 16, 2, -2),
    Sketcher.Constraint("Symmetric", 15, 2, 18, 2, -2),
    Sketcher.Constraint("Symmetric", 9, 2, 20, 2, -2),
    Sketcher.Constraint("Symmetric", 11, 2, 22, 2, -2),
    Sketcher.Constraint("Symmetric", 1, 2, 24, 2, -2),
    Sketcher.Constraint("Symmetric", 3, 2, 26, 2, -2),
    Sketcher.Constraint("Symmetric", 5, 2, 28, 2, -2),
    Sketcher.Constraint("Symmetric", 7, 2, 30, 2, -2),
    Sketcher.Constraint("Horizontal", 1, 2, 4, 2),
    Sketcher.Constraint("Horizontal", 3, 2, 6, 2),
    Sketcher.Constraint("Horizontal", 5, 2, 8, 2),
    Sketcher.Constraint("Horizontal", 7, 2, 10, 2),
    Sketcher.Constraint("Horizontal", 9, 2, 12, 2),
    Sketcher.Constraint("Horizontal", 11, 2, 14, 2),
    Sketcher.Constraint("Equal", 3, 5),
    Sketcher.Constraint("Equal", 7, 9),
    Sketcher.Constraint("Equal", 11, 13),
    Sketcher.Constraint("Equal", 31, 0),
    Sketcher.Constraint("DistanceX", 5, 2, 0, 2, 3.0),
    Sketcher.Constraint("DistanceX", 1, 2, 8, 2, 3.0),
    Sketcher.Constraint("DistanceX", 9, 2, 12, 2, 3.0),
    Sketcher.Constraint("DistanceX", 13, 2, 16, 2, 3.0),
    Sketcher.Constraint("DistanceX", 1, 1, 1, 2, 2.08),
    Sketcher.Constraint("DistanceY", -1, 1, 0, 2, 1.35),
])
pad13 = doc.addObject("PartDesign::Pad", "Pad012")
body.addObject(pad13)
pad13.Profile = sketch15
pad13.Length = 11

doc.recompute()
